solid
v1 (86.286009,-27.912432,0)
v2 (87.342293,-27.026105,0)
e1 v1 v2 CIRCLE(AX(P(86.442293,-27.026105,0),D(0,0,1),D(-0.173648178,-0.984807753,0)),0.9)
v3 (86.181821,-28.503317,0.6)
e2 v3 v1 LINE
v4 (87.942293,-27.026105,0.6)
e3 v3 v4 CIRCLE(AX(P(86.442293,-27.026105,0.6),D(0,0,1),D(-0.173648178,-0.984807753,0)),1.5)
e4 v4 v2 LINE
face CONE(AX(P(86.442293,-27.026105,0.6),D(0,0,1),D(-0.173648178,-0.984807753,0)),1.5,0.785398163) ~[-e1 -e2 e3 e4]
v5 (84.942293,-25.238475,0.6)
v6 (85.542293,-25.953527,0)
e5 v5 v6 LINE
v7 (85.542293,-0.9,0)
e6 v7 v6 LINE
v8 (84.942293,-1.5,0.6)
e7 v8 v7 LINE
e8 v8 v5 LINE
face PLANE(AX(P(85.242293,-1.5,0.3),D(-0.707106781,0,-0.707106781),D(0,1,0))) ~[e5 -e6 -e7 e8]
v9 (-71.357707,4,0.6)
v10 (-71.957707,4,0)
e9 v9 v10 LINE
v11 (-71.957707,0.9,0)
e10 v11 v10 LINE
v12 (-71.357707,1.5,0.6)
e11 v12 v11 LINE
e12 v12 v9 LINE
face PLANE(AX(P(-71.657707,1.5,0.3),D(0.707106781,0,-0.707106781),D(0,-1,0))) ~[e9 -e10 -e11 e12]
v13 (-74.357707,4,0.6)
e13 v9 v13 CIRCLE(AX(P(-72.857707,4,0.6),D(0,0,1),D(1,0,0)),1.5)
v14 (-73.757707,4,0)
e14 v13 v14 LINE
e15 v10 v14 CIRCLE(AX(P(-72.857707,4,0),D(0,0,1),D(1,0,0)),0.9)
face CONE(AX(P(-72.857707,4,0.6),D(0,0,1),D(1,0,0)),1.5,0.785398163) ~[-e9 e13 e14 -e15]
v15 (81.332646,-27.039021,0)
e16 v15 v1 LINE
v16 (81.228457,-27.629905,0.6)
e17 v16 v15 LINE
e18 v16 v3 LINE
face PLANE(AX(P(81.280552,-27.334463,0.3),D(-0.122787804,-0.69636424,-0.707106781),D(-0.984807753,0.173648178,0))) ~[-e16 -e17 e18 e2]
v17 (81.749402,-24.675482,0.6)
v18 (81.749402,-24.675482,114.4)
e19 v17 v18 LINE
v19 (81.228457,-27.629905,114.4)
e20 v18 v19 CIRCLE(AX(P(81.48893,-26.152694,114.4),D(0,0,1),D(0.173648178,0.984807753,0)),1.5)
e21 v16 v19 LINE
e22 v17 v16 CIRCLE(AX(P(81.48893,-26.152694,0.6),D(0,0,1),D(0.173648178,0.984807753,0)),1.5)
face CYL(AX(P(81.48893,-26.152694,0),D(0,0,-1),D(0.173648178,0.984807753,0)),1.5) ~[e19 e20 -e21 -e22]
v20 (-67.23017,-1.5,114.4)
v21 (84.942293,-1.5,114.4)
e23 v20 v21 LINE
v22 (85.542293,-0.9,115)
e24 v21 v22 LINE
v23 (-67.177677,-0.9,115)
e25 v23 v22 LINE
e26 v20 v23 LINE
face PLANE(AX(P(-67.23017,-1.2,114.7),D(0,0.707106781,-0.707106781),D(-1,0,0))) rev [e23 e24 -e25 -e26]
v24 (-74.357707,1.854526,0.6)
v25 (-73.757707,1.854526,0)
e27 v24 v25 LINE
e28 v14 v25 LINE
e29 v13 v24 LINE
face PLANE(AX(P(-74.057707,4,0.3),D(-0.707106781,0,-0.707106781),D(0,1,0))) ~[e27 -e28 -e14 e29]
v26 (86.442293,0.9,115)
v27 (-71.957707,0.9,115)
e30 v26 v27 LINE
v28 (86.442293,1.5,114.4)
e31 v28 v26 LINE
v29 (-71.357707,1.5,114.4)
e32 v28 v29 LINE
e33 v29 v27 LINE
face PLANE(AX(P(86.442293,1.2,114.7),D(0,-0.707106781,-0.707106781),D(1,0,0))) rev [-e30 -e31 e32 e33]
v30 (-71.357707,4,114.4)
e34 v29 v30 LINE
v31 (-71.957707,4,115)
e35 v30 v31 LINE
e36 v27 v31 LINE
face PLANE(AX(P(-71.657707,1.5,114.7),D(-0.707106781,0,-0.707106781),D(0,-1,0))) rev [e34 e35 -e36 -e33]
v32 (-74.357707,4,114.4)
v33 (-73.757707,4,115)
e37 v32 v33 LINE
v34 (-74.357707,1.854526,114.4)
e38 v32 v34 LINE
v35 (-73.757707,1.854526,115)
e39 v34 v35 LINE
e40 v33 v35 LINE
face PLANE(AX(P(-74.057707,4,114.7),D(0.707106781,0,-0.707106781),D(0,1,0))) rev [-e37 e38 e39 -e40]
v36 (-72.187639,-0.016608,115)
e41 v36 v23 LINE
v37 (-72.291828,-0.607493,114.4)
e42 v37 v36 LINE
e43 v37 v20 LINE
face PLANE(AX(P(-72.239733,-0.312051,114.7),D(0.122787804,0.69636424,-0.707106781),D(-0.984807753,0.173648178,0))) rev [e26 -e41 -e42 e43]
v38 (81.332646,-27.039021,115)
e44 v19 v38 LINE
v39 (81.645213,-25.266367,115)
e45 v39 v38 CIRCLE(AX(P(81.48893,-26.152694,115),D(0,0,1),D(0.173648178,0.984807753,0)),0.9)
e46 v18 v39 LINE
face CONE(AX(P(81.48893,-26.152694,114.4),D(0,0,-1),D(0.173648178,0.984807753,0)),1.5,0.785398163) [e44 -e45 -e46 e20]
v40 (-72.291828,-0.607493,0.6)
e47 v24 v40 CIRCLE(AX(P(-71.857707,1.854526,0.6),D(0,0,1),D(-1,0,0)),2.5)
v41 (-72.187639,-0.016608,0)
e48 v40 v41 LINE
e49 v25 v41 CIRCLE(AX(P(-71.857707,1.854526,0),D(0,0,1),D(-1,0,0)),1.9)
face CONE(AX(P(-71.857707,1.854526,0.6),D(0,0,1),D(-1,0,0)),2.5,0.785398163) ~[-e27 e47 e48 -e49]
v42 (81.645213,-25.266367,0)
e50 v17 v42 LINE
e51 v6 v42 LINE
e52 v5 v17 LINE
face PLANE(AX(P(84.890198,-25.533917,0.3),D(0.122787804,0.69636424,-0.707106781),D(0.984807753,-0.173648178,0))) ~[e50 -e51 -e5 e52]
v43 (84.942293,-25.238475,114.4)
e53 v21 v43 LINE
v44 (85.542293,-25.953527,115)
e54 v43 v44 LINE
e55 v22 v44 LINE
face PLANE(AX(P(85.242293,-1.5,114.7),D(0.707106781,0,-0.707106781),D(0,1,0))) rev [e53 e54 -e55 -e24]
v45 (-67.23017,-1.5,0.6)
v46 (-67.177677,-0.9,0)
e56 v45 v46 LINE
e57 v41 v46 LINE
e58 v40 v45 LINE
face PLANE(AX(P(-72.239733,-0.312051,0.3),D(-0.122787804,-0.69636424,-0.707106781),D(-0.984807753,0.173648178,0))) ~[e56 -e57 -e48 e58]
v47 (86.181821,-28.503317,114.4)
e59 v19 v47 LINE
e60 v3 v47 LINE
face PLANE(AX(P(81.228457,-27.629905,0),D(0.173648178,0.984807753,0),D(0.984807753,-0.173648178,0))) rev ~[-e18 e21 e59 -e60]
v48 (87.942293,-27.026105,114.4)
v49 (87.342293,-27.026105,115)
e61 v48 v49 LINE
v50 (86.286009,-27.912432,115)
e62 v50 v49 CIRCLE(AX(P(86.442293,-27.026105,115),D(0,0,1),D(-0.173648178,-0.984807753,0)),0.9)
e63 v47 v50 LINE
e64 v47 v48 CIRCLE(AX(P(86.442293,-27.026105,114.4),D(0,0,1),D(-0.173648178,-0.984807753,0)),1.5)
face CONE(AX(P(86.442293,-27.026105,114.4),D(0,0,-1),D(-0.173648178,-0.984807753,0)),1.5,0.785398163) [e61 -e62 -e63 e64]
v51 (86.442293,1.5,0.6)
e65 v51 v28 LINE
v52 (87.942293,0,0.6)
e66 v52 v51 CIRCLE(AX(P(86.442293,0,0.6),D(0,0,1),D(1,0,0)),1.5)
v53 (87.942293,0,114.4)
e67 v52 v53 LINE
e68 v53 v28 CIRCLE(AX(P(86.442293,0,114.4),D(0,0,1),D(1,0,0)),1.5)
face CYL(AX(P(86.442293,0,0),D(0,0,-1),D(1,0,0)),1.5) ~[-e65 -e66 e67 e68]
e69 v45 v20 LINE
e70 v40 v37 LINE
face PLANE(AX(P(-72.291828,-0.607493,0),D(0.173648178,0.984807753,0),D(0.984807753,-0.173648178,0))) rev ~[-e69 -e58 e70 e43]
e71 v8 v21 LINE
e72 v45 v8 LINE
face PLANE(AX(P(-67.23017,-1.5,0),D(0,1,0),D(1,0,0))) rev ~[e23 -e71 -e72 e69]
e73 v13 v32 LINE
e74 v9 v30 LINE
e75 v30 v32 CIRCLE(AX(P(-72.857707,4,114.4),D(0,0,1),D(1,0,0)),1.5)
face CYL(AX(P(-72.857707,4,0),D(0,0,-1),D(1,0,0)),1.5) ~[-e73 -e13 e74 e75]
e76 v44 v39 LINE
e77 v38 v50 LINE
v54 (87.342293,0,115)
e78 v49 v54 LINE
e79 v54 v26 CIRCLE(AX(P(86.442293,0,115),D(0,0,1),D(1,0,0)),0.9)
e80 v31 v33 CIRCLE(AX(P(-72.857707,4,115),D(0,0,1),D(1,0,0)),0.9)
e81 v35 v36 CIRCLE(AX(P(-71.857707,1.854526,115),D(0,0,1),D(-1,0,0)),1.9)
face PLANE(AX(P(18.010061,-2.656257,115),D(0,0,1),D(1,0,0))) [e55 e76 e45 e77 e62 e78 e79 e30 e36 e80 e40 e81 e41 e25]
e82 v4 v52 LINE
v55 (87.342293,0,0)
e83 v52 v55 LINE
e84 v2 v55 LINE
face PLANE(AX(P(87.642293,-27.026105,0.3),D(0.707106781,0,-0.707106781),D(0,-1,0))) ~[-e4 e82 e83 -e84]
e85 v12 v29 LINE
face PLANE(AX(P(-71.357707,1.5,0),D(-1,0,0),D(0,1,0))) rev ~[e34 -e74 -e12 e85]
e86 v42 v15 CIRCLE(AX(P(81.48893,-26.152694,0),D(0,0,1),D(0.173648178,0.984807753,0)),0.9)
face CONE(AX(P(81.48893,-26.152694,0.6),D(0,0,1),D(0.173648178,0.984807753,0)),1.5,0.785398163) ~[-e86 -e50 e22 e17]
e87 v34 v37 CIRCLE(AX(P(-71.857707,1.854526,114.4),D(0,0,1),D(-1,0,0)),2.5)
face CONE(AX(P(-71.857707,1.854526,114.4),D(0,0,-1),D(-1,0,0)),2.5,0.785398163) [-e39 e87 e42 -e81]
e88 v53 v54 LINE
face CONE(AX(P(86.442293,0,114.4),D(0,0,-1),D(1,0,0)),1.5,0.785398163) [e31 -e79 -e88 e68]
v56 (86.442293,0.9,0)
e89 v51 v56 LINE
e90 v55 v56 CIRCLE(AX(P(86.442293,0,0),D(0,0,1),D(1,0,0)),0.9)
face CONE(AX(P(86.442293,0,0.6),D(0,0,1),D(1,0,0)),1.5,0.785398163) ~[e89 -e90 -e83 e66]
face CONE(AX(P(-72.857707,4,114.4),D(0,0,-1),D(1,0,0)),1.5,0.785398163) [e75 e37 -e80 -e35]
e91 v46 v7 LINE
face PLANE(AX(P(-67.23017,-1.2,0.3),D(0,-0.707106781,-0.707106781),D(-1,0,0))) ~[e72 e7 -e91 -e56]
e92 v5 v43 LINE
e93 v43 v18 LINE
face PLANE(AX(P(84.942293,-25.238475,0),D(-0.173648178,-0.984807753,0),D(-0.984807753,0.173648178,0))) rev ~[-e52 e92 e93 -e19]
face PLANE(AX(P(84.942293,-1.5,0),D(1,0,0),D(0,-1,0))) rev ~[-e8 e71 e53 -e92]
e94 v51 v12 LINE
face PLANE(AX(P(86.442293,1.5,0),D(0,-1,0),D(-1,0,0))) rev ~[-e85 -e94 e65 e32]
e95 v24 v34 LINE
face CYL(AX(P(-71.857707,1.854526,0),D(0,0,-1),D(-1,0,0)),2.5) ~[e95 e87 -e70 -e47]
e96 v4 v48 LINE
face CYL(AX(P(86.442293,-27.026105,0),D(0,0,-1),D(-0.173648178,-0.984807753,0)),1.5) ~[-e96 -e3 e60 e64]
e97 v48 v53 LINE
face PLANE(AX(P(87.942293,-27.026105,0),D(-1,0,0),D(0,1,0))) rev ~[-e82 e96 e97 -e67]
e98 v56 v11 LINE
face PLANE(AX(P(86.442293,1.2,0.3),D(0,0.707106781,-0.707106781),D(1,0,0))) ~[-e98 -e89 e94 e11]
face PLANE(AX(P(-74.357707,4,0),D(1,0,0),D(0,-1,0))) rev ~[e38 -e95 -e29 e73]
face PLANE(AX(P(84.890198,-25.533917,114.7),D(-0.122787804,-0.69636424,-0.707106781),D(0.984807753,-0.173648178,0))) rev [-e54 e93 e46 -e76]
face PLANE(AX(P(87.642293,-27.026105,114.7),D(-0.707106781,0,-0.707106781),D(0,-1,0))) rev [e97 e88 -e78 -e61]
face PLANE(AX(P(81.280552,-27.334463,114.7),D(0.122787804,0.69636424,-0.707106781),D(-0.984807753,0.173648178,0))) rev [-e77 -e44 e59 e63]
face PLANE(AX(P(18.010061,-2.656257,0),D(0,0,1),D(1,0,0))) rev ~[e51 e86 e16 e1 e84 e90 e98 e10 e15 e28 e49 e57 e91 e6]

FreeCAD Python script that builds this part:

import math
import FreeCAD as App
import Part
import Sketcher

V = App.Vector
Q = App.Units.Quantity


def edges_at(feature, points):
    """Names of the edges that pass closest to the given points."""
    edges = feature.Shape.Edges
    near = lambda p: min(range(len(edges)), key=lambda i: edges[i].distToShape(Part.Vertex(*p))[0])
    return sorted({f"Edge{near(p) + 1}" for p in points})

doc = App.newDocument("Part")
body = doc.addObject("PartDesign::Body", "Body")

# Sketch on XY plane
sketch1 = body.newObject("Sketcher::SketchObject", "Sketch")
sketch1.AttachmentSupport = (doc.getObject("XY_Plane"), [""])
sketch1.MapMode = "FlatFace"
sketch1.addGeometry([
    Part.ArcOfCircle(Part.Circle(V(-72.9, 4, 0), V(0, 0, 1), 1.5), math.radians(0), math.radians(180)),  # 0
    Part.LineSegment(V(-74.4, 4, 0), V(-74.4, 1.9, 0)),  # 1
    Part.ArcOfCircle(Part.Circle(V(-71.9, 1.9, 0), V(0, 0, 1), 2.5), math.radians(180), math.radians(260)),  # 2
    Part.LineSegment(V(-72.3, -0.6, 0), V(-67.2, -1.5, 0)),  # 3
    Part.LineSegment(V(-67.2, -1.5, 0), V(84.9, -1.5, 0)),  # 4
    Part.LineSegment(V(84.9, -1.5, 0), V(84.9, -25.2, 0)),  # 5
    Part.LineSegment(V(84.9, -25.2, 0), V(81.7, -24.7, 0)),  # 6
    Part.ArcOfCircle(Part.Circle(V(81.5, -26.2, 0), V(0, 0, 1), 1.5), math.radians(80), math.radians(260)),  # 7
    Part.LineSegment(V(81.2, -27.6, 0), V(86.2, -28.5, 0)),  # 8
    Part.ArcOfCircle(Part.Circle(V(86.4, -27, 0), V(0, 0, 1), 1.5), math.radians(-100), math.radians(0)),  # 9
    Part.LineSegment(V(87.9, -27, 0), V(87.9, 0, 0)),  # 10
    Part.ArcOfCircle(Part.Circle(V(86.4, 0, 0), V(0, 0, 1), 1.5), math.radians(0), math.radians(90)),  # 11
    Part.LineSegment(V(86.4, 1.5, 0), V(-71.4, 1.5, 0)),  # 12
    Part.LineSegment(V(-71.4, 1.5, 0), V(-71.4, 4, 0)),  # 13
], False)
sketch1.addConstraint([
    Sketcher.Constraint("Tangent", 0, 2, 1, 1),
    Sketcher.Constraint("Tangent", 1, 2, 2, 1),
    Sketcher.Constraint("Tangent", 2, 2, 3, 1),
    Sketcher.Constraint("Coincident", 3, 2, 4, 1),
    Sketcher.Constraint("Coincident", 4, 2, 5, 1),
    Sketcher.Constraint("Coincident", 5, 2, 6, 1),
    Sketcher.Constraint("Tangent", 6, 2, 7, 1),
    Sketcher.Constraint("Tangent", 7, 2, 8, 1),
    Sketcher.Constraint("Tangent", 8, 2, 9, 1),
    Sketcher.Constraint("Tangent", 9, 2, 10, 1),
    Sketcher.Constraint("Tangent", 10, 2, 11, 1),
    Sketcher.Constraint("Tangent", 11, 2, 12, 1),
    Sketcher.Constraint("Coincident", 12, 2, 13, 1),
    Sketcher.Constraint("Tangent", 13, 2, 0, 1),
    Sketcher.Constraint("Vertical", 1),
    Sketcher.Constraint("Horizontal", 4),
    Sketcher.Constraint("Vertical", 5),
    Sketcher.Constraint("Vertical", 10),
    Sketcher.Constraint("Horizontal", 12),
    Sketcher.Constraint("Vertical", 13),
    Sketcher.Constraint("Equal", 0, 7),
    Sketcher.Constraint("Equal", 7, 9),
    Sketcher.Constraint("Equal", 9, 11),
    Sketcher.Constraint("PointOnObject", 11, 3, -1),
    Sketcher.Constraint("Parallel", 3, 6),
    Sketcher.Constraint("Parallel", 6, 8),
    Sketcher.Constraint("Radius", 0, 1.5),
    Sketcher.Constraint("Radius", 2, 2.5),
    Sketcher.Constraint("Angle", 3, Q("-10 deg")),
    Sketcher.Constraint("DistanceX", 12, 2, 12, 1, 157.8),
    Sketcher.Constraint("DistanceY", 13, 1, 13, 2, 2.5),
    Sketcher.Constraint("DistanceX", 5, 2, 9, 2, 3.0),
    Sketcher.Constraint("DistanceY", 4, 2, 11, 2, 3.0),
    Sketcher.Constraint("DistanceX", -1, 1, 6, 2, 81.749402),
    Sketcher.Constraint("DistanceY", 7, 3, 2, 2, 25.5452),
    Sketcher.Constraint("DistanceY", 7, 2, 9, 3, 0.6038),
    Sketcher.Constraint("DistanceX", 4, 1, 4, 2, 152.172463),
])
pad1 = body.newObject("PartDesign::Pad", "Pad")
pad1.Profile = sketch1
pad1.Length = 115
doc.recompute()

chamfer = body.newObject("PartDesign::Chamfer", "Chamfer")
chamfer.Base = (pad1, edges_at(pad1, [
    (-72.858, 5.5, 115),
    (-74.358, 2.927, 115),
    (-73.773, 0.248, 115),
    (-69.761, -1.054, 115),
    (8.856, -1.5, 115),
    (84.942, -13.369, 115),
    (83.346, -24.957, 115),
    (80.012, -25.892, 115),
    (83.705, -28.067, 115),
    (87.406, -28.175, 115),
    (87.942, -13.513, 115),
    (87.503, 1.061, 115),
    (7.542, 1.5, 115),
    (-71.358, 2.75, 115),
    (-72.858, 5.5, 0),
    (-74.358, 2.927, 0),
    (-73.773, 0.248, 0),
    (-69.761, -1.054, 0),
    (8.856, -1.5, 0),
    (84.942, -13.369, 0),
    (83.346, -24.957, 0),
    (80.012, -25.892, 0),
    (83.705, -28.067, 0),
    (87.406, -28.175, 0),
    (87.942, -13.513, 0),
    (87.503, 1.061, 0),
    (7.542, 1.5, 0),
    (-71.358, 2.75, 0),
]))
chamfer.Size = 0.6

doc.recompute()
